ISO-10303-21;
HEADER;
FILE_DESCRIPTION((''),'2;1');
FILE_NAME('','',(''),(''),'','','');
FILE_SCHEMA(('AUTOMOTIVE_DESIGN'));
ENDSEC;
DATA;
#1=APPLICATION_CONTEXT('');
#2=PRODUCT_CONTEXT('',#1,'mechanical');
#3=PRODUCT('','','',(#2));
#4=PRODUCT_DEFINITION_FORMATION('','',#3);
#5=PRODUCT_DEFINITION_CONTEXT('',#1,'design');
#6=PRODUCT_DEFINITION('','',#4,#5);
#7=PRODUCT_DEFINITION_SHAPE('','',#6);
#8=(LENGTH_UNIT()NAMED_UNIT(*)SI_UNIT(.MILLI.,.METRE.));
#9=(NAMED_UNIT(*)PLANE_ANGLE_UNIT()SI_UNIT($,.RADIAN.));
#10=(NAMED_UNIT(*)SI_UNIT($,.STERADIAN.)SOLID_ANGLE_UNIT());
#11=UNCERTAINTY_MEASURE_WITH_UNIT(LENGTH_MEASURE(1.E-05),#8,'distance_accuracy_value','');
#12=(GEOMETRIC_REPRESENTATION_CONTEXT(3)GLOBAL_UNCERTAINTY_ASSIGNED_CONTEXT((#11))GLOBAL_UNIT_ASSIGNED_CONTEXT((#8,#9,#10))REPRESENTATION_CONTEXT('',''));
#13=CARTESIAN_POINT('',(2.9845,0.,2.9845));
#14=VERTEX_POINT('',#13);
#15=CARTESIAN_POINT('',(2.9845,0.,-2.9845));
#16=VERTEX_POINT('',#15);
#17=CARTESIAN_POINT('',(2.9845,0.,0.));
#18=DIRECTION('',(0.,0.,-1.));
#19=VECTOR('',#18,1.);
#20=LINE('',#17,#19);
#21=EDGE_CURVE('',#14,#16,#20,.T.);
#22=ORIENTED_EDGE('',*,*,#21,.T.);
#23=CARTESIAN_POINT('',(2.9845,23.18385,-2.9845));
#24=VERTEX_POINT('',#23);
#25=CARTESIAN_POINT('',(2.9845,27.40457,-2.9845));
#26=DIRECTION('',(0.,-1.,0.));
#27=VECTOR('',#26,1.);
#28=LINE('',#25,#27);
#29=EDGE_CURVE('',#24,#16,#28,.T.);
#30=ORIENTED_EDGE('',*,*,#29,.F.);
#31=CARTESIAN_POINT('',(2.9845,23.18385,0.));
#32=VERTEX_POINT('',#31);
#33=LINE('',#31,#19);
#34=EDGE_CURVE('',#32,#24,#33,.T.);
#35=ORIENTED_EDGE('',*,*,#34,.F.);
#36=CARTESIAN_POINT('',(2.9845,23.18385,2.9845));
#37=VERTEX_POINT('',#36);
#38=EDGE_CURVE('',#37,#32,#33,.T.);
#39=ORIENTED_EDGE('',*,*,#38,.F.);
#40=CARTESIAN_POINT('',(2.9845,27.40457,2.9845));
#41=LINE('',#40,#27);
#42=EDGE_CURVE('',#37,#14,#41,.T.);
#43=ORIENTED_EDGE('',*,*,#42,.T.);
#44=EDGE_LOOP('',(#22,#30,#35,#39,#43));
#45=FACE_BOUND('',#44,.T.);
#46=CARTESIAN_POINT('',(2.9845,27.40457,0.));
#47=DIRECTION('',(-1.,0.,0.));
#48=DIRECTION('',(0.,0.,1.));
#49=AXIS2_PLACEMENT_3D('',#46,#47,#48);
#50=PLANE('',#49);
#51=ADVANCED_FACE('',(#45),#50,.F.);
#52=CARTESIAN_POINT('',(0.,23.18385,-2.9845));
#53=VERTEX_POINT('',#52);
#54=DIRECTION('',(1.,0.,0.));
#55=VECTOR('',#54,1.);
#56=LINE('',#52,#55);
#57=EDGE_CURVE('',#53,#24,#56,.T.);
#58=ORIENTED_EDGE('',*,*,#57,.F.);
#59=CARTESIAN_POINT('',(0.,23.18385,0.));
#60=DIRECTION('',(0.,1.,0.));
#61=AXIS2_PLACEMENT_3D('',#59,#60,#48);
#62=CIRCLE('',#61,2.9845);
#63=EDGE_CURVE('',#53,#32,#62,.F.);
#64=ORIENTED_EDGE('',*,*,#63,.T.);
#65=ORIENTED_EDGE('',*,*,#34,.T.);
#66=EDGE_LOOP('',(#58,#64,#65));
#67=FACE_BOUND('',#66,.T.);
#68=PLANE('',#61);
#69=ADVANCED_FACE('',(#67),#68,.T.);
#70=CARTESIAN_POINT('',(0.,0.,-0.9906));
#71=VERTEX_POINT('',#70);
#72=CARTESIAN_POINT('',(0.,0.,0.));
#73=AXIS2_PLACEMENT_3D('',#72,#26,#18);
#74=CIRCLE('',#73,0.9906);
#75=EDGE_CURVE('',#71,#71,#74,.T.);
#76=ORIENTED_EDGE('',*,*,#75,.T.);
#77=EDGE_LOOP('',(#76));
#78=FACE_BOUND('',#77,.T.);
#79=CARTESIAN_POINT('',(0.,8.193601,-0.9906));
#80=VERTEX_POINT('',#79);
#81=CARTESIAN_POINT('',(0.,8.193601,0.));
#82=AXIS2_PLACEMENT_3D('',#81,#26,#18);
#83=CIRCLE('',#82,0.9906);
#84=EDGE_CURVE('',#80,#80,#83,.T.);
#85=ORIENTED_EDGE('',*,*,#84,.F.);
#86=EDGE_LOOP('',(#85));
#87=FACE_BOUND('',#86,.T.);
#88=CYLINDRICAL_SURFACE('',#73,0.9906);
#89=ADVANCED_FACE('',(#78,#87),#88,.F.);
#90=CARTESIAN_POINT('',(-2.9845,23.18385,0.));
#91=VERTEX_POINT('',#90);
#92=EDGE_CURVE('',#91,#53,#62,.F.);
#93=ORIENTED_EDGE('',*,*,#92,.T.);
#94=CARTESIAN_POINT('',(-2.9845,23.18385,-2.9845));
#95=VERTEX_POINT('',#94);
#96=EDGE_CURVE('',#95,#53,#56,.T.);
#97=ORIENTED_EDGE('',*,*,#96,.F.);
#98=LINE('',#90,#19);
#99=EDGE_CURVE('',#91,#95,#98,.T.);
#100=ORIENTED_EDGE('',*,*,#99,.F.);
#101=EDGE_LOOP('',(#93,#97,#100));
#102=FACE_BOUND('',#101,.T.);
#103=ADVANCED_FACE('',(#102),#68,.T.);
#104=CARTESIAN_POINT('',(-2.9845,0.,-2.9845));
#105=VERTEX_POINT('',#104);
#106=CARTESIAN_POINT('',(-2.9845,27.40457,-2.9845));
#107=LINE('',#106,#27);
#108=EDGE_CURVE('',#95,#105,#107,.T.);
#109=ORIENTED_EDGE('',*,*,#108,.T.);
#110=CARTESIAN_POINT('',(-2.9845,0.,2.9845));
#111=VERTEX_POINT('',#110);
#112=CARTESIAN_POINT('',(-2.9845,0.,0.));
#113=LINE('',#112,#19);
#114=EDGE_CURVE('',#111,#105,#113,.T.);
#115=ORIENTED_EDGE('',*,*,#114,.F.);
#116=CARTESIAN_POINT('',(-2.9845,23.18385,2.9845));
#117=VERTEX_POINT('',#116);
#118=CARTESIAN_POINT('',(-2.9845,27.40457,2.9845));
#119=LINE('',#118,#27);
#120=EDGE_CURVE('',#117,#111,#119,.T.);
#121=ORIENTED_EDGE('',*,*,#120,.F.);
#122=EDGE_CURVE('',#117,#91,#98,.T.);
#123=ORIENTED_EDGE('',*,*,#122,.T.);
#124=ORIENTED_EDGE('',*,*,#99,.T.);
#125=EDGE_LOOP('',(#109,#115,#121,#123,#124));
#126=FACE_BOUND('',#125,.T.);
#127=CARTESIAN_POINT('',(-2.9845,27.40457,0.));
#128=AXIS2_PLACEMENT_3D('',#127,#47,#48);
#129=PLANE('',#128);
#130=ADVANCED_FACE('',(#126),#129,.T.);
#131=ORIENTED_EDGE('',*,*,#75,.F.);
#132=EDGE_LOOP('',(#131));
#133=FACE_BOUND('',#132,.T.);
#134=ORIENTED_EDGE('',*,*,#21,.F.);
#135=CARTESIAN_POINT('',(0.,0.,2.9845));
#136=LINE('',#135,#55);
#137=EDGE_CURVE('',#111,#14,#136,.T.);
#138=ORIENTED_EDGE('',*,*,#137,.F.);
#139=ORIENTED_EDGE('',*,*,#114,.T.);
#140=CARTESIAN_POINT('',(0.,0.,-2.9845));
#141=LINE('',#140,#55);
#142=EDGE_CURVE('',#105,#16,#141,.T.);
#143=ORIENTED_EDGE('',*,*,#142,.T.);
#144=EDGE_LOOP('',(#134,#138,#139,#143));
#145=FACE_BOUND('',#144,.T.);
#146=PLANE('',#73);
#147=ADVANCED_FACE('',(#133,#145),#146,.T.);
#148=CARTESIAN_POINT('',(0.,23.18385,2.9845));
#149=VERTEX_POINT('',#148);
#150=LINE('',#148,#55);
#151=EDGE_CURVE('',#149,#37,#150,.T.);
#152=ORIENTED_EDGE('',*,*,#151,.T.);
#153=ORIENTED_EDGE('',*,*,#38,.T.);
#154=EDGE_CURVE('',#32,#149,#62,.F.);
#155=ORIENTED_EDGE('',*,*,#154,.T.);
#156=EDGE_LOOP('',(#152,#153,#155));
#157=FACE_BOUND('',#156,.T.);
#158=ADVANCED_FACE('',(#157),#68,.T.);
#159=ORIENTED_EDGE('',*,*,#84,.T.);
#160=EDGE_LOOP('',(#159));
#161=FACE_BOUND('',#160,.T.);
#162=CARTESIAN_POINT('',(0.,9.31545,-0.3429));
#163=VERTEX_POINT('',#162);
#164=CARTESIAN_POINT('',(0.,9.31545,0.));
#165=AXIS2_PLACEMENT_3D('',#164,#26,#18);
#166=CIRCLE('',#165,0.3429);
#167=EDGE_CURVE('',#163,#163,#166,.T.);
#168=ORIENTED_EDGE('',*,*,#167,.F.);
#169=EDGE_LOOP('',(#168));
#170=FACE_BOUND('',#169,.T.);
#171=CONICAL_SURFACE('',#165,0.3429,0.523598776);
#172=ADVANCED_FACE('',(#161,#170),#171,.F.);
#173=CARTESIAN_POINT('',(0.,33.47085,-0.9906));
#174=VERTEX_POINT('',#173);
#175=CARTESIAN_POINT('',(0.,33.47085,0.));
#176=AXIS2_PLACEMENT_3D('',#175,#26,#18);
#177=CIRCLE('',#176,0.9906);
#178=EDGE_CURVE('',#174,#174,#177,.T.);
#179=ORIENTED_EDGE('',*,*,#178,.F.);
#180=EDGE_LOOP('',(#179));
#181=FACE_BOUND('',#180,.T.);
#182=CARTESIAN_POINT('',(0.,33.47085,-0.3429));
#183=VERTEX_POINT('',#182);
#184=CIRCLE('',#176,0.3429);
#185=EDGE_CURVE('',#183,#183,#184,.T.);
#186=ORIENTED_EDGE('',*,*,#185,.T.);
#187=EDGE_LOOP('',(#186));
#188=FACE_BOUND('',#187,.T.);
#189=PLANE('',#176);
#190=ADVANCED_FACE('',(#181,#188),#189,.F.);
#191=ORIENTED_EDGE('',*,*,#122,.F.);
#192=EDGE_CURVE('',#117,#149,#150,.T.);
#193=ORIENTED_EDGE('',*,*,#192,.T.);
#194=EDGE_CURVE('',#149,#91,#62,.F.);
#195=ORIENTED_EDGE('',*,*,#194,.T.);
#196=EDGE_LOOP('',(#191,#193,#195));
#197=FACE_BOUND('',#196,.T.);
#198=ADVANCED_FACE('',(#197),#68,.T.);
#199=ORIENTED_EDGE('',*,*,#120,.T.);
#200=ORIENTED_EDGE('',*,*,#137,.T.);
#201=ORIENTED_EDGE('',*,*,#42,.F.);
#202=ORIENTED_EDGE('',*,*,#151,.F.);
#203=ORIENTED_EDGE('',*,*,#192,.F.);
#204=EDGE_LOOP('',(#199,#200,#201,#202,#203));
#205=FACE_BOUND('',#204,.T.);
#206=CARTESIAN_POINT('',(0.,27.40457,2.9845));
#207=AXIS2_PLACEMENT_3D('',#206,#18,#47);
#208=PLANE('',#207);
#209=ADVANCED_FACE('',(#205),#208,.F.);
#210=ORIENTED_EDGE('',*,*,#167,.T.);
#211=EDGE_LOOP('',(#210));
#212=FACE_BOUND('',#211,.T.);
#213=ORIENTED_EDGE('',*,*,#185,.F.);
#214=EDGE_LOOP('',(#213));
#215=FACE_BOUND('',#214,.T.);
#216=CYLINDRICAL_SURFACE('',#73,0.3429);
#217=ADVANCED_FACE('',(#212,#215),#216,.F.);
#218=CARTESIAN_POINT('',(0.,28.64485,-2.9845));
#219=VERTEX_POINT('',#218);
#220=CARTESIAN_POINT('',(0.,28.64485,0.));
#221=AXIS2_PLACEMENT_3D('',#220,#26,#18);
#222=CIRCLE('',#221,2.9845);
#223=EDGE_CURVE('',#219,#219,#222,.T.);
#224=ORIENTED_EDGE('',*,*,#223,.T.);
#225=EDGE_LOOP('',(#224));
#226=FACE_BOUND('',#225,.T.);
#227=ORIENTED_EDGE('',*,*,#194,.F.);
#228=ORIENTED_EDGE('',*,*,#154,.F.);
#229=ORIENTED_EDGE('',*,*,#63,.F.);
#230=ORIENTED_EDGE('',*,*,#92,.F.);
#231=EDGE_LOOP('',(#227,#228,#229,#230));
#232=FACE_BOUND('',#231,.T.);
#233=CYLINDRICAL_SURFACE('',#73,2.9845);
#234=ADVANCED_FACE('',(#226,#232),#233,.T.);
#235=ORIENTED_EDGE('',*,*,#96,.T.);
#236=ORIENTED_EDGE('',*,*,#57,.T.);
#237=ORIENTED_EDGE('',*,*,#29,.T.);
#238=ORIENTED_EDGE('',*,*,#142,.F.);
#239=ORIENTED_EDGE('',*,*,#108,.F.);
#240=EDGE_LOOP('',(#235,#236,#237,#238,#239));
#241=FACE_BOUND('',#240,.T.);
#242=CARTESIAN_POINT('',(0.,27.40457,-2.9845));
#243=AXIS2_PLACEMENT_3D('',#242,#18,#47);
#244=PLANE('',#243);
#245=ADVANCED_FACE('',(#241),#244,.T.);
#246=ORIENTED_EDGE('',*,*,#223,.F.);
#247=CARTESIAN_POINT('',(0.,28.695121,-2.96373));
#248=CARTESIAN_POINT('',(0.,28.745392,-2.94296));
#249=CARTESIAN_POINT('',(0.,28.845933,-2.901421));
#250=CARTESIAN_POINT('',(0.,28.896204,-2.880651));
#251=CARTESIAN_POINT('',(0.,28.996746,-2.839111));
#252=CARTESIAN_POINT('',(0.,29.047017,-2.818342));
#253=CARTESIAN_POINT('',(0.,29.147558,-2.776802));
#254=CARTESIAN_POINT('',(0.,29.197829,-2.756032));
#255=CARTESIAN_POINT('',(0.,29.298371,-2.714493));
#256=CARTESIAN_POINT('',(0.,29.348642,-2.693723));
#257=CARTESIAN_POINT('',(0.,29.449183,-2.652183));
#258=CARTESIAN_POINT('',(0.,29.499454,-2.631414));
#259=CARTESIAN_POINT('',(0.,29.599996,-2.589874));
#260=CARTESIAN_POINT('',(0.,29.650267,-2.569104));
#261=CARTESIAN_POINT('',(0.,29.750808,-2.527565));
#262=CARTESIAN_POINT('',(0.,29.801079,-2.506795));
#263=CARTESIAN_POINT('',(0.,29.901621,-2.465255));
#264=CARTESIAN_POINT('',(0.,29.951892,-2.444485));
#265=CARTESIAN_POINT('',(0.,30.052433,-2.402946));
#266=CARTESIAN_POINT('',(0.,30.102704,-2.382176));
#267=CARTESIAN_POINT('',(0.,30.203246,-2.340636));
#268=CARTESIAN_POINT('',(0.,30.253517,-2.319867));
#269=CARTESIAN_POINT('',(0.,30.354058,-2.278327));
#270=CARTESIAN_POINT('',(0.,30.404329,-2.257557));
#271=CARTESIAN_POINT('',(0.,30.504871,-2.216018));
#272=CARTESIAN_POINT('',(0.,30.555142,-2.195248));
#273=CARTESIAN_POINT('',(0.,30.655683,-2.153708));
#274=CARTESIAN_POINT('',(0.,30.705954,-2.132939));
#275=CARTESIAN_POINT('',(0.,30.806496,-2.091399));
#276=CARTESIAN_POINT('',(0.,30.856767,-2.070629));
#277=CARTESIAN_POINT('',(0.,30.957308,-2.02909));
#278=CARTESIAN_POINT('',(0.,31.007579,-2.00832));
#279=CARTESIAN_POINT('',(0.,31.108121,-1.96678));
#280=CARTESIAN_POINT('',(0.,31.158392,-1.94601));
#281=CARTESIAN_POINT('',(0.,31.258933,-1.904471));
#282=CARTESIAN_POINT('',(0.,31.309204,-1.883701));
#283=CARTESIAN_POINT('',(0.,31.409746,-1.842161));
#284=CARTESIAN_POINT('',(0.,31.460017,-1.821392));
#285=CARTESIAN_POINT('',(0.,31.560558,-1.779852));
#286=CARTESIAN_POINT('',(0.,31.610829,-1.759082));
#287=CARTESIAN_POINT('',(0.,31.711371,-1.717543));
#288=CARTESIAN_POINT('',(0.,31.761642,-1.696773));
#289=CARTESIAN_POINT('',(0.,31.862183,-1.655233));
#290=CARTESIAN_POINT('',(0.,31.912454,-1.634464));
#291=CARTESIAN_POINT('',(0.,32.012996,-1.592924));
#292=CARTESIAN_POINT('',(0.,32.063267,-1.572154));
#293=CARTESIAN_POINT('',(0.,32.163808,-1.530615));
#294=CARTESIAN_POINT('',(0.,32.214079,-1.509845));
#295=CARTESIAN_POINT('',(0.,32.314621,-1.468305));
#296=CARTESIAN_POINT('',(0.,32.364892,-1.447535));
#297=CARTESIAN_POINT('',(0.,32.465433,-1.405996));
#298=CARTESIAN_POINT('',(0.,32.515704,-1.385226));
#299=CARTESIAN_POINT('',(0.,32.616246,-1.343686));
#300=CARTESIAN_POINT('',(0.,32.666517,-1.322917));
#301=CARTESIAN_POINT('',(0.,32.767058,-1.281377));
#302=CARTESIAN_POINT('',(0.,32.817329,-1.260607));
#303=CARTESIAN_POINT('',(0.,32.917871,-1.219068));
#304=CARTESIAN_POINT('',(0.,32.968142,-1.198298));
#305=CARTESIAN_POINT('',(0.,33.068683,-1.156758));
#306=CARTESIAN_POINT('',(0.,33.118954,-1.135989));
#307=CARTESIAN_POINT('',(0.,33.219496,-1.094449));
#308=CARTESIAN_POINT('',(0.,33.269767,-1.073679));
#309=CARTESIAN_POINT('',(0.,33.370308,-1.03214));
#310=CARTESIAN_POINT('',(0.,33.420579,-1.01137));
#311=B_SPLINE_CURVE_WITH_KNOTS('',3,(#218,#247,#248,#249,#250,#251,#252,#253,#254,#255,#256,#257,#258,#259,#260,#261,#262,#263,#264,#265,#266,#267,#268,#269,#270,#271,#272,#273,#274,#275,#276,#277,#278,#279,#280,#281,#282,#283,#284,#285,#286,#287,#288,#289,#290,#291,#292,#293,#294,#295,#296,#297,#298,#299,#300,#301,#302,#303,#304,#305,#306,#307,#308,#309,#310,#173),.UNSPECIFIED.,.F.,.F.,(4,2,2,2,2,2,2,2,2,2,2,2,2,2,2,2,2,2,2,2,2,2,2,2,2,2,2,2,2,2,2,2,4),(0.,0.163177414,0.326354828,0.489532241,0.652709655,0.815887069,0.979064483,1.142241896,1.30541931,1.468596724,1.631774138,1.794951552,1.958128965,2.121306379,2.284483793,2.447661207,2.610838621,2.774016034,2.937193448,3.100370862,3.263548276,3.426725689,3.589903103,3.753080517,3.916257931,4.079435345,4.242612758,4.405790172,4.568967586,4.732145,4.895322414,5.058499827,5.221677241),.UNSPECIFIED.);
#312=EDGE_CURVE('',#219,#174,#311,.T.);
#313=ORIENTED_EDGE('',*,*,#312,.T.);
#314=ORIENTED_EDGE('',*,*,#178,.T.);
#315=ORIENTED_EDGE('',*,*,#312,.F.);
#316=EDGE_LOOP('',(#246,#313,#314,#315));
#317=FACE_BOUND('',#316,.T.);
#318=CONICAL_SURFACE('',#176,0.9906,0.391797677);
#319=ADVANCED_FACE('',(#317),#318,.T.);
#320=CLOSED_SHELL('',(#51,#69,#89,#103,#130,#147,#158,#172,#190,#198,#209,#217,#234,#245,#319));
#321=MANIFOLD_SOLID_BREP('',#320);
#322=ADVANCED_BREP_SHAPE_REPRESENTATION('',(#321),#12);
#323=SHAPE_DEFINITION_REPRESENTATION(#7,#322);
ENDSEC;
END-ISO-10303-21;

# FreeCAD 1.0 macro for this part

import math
import FreeCAD as App
import Part
import Sketcher

V = App.Vector
Q = App.Units.Quantity

doc = App.newDocument("Part")
body = doc.addObject("PartDesign::Body", "Body")

# Sketch on XY plane
sketch1 = body.newObject("Sketcher::SketchObject", "Sketch")
sketch1.AttachmentSupport = (doc.getObject("XY_Plane"), [""])
sketch1.MapMode = "FlatFace"
sketch1.addGeometry([
    Part.LineSegment(V(-3, 0, 0), V(-1, 0, 0)),  # 0
    Part.LineSegment(V(-1, 0, 0), V(-1, 8.2, 0)),  # 1
    Part.LineSegment(V(-1, 8.2, 0), V(-0.3, 9.3, 0)),  # 2
    Part.LineSegment(V(-0.3, 9.3, 0), V(-0.3, 33.5, 0)),  # 3
    Part.LineSegment(V(-0.3, 33.5, 0), V(-1, 33.5, 0)),  # 4
    Part.LineSegment(V(-1, 33.5, 0), V(-3, 28.6, 0)),  # 5
    Part.LineSegment(V(-3, 28.6, 0), V(-3, 0, 0)),  # 6
], False)
sketch1.addConstraint([
    Sketcher.Constraint("Coincident", 0, 2, 1, 1),
    Sketcher.Constraint("Coincident", 1, 2, 2, 1),
    Sketcher.Constraint("Coincident", 2, 2, 3, 1),
    Sketcher.Constraint("Coincident", 3, 2, 4, 1),
    Sketcher.Constraint("Coincident", 4, 2, 5, 1),
    Sketcher.Constraint("Coincident", 5, 2, 6, 1),
    Sketcher.Constraint("Coincident", 6, 2, 0, 1),
    Sketcher.Constraint("Horizontal", 0),
    Sketcher.Constraint("Vertical", 1),
    Sketcher.Constraint("Vertical", 3),
    Sketcher.Constraint("Horizontal", 4),
    Sketcher.Constraint("Vertical", 6),
    Sketcher.Constraint("PointOnObject", 0, 2, -1),
    Sketcher.Constraint("Vertical", 1, 2, 4, 2),
    Sketcher.Constraint("Angle", 2, Q("60 deg")),
    Sketcher.Constraint("DistanceY", 3, 1, 3, 2, Q("0.951 in")),
    Sketcher.Constraint("DistanceY", 5, 2, 4, 2, Q("0.19 in")),
    Sketcher.Constraint("Distance", 2, Q("0.051 in")),
    Sketcher.Constraint("DistanceX", 0, 1, 0, 2, Q("0.0785 in")),
    Sketcher.Constraint("DistanceX", 0, 2, -1, 1, Q("0.039 in")),
    Sketcher.Constraint("DistanceY", 1, 1, 1, 2, 8.193601),
])
revolution = body.newObject("PartDesign::Revolution", "Revolution")
revolution.Profile = sketch1
revolution.ReferenceAxis = (sketch1, ["V_Axis"])
revolution.Angle = 360

# Sketch on XZ plane
sketch2 = body.newObject("Sketcher::SketchObject", "Sketch001")
sketch2.AttachmentSupport = (doc.getObject("XZ_Plane"), [""])
sketch2.MapMode = "FlatFace"
sketch2.AttachmentOffset = App.Placement(V(0, 0, -23.18385), App.Rotation())
sketch2.addGeometry([
    Part.LineSegment(V(3, 3, 0), V(0, 3, 0)),  # 0
    Part.ArcOfCircle(Part.Circle(V(0, 0, 0), V(0, 0, 1), 3), math.radians(0), math.radians(90)),  # 1
    Part.LineSegment(V(3, 0, 0), V(3, 3, 0)),  # 2
    Part.LineSegment(V(0, 3, 0), V(-3, 3, 0)),  # 3
    Part.LineSegment(V(-3, 3, 0), V(-3, 0, 0)),  # 4
    Part.ArcOfCircle(Part.Circle(V(0, 0, 0), V(0, 0, 1), 3), math.radians(90), math.radians(180)),  # 5
    Part.LineSegment(V(3, -3, 0), V(3, 0, 0)),  # 6
    Part.ArcOfCircle(Part.Circle(V(0, 0, 0), V(0, 0, 1), 3), math.radians(-90), math.radians(0)),  # 7
    Part.LineSegment(V(0, -3, 0), V(3, -3, 0)),  # 8
    Part.ArcOfCircle(Part.Circle(V(0, 0, 0), V(0, 0, 1), 3), math.radians(180), math.radians(270)),  # 9
    Part.LineSegment(V(-3, 0, 0), V(-3, -3, 0)),  # 10
    Part.LineSegment(V(-3, -3, 0), V(0, -3, 0)),  # 11
], False)
sketch2.addConstraint([
    Sketcher.Constraint("Tangent", 0, 2, 1, 2),
    Sketcher.Constraint("Tangent", 1, 1, 2, 1),
    Sketcher.Constraint("Coincident", 2, 2, 0, 1),
    Sketcher.Constraint("Coincident", 3, 2, 4, 1),
    Sketcher.Constraint("Tangent", 4, 2, 5, 2),
    Sketcher.Constraint("Tangent", 5, 1, 3, 1),
    Sketcher.Constraint("Tangent", 6, 2, 7, 2),
    Sketcher.Constraint("Tangent", 7, 1, 8, 1),
    Sketcher.Constraint("Coincident", 8, 2, 6, 1),
    Sketcher.Constraint("Tangent", 9, 1, 10, 1),
    Sketcher.Constraint("Coincident", 10, 2, 11, 1),
    Sketcher.Constraint("Tangent", 11, 2, 9, 2),
    Sketcher.Constraint("Horizontal", 0),
    Sketcher.Constraint("Vertical", 2),
    Sketcher.Constraint("Horizontal", 3),
    Sketcher.Constraint("Vertical", 4),
    Sketcher.Constraint("Vertical", 6),
    Sketcher.Constraint("Horizontal", 8),
    Sketcher.Constraint("Vertical", 10),
    Sketcher.Constraint("Horizontal", 11),
    Sketcher.Constraint("Coincident", 1, 3, -1, 1),
    Sketcher.Constraint("Coincident", 5, 3, -1, 1),
    Sketcher.Constraint("Coincident", 7, 3, -1, 1),
    Sketcher.Constraint("Coincident", 9, 3, -1, 1),
    Sketcher.Constraint("Equal", 1, 5),
    Sketcher.Constraint("Equal", 5, 7),
    Sketcher.Constraint("Equal", 7, 9),
    Sketcher.Constraint("Radius", 1, Q("0.1175 in")),
])
pad1 = body.newObject("PartDesign::Pad", "Pad")
pad1.Profile = sketch2
pad1.Length = 23.18385

doc.recompute()
